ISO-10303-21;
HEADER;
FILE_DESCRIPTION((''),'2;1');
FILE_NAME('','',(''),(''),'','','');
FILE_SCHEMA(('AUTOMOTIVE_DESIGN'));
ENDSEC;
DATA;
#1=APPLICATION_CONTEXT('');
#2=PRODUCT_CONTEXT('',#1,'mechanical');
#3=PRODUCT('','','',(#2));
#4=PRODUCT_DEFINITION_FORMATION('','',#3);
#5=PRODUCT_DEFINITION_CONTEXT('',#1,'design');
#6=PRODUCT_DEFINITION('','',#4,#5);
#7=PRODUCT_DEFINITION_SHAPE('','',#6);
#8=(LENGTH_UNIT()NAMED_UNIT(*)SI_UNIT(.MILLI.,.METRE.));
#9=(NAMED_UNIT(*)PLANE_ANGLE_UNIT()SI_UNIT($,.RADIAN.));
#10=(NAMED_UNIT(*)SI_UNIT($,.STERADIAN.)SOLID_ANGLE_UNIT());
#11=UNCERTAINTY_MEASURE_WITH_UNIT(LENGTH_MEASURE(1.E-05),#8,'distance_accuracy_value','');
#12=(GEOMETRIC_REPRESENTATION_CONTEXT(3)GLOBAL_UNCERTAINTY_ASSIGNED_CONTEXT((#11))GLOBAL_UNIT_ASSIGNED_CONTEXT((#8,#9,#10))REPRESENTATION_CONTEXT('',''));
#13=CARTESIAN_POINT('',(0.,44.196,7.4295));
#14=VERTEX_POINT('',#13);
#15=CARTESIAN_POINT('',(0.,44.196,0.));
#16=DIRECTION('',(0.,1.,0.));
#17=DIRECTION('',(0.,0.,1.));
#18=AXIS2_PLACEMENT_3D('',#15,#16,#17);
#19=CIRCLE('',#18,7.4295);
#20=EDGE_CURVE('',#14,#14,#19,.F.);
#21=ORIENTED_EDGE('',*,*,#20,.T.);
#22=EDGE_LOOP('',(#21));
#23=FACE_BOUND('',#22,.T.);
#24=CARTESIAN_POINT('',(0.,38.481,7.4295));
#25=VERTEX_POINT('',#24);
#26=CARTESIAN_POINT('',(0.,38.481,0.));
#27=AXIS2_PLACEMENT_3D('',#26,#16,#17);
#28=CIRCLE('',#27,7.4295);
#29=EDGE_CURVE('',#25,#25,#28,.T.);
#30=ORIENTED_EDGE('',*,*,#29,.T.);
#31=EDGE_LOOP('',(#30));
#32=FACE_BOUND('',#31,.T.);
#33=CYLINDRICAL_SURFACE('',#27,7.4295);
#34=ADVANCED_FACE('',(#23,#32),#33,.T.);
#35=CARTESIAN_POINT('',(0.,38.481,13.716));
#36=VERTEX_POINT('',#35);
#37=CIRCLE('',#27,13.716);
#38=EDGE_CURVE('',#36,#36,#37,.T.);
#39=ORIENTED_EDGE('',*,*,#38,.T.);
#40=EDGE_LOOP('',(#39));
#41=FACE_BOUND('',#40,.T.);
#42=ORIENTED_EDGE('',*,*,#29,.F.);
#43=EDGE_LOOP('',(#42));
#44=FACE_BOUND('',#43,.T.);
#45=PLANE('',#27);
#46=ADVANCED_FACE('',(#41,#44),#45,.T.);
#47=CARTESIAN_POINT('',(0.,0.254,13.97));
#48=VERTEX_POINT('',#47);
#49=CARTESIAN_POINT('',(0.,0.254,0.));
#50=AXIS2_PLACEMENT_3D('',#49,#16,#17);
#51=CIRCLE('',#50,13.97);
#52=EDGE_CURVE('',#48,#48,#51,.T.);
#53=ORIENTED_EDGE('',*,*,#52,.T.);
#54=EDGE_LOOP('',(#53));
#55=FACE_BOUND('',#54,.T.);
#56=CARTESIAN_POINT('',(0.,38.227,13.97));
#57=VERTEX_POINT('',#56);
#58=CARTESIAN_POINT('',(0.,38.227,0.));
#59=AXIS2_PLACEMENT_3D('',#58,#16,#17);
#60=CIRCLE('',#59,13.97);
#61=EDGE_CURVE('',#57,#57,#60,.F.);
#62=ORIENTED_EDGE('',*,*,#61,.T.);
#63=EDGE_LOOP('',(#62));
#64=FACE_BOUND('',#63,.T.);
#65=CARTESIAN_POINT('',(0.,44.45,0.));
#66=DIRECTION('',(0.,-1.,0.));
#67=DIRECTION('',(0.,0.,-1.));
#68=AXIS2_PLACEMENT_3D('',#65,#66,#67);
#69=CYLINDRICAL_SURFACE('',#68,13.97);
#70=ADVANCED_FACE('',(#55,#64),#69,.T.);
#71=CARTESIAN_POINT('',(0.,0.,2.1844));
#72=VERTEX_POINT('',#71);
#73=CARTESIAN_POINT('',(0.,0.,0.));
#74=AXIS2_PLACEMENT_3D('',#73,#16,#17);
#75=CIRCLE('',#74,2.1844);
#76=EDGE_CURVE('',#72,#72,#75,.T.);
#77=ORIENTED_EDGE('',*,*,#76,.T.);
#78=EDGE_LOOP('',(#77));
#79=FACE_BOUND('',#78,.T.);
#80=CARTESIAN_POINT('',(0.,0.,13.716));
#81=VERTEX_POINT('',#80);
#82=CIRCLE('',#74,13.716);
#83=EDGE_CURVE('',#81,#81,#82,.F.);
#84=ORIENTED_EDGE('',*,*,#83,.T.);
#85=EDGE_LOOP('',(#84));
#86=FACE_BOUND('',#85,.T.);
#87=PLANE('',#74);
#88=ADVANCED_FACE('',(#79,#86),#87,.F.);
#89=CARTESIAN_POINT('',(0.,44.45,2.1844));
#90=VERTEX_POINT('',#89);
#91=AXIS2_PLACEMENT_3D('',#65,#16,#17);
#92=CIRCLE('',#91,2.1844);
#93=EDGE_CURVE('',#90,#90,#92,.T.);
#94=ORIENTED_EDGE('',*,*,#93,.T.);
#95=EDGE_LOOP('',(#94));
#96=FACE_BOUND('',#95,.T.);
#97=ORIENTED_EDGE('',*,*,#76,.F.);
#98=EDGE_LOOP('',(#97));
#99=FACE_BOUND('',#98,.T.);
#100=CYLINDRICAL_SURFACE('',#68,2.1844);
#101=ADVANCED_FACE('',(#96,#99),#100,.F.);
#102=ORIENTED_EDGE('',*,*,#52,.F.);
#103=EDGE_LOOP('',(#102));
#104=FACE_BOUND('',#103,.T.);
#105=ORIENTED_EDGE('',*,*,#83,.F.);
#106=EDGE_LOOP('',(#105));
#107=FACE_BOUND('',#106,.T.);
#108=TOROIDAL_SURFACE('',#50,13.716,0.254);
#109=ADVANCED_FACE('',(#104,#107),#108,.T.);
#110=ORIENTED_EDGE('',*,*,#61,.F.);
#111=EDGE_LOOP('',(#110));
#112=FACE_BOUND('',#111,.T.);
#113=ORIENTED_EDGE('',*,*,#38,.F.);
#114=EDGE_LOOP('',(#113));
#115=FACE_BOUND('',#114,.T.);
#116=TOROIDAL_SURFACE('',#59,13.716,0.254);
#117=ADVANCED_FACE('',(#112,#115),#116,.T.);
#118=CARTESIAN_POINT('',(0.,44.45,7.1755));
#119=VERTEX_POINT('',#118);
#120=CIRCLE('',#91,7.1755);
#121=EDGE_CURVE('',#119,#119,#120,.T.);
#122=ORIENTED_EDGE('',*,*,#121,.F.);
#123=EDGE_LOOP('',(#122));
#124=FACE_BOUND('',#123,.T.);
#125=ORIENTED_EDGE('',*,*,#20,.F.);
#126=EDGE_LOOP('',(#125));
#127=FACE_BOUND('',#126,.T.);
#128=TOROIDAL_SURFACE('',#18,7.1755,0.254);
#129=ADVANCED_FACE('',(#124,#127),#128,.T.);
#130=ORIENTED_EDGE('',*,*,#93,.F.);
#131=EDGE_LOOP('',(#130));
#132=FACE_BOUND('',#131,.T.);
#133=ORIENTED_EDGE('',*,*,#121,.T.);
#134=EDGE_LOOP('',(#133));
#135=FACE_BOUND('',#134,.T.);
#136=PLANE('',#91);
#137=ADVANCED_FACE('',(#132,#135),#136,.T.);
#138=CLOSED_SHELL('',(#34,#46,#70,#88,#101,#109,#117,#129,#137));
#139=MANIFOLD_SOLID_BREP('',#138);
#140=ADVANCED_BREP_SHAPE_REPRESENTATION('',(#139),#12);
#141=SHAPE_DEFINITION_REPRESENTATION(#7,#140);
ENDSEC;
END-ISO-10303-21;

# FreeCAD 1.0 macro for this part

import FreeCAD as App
import Part
import Sketcher

V = App.Vector
Q = App.Units.Quantity


def edges_at(feature, points):
    """Names of the edges that pass closest to the given points."""
    edges = feature.Shape.Edges
    near = lambda p: min(range(len(edges)), key=lambda i: edges[i].distToShape(Part.Vertex(*p))[0])
    return sorted({f"Edge{near(p) + 1}" for p in points})

doc = App.newDocument("Part")
body = doc.addObject("PartDesign::Body", "Body")

sketch1 = body.newObject("Sketcher::SketchObject", "Sketch")
sketch1.AttachmentSupport = (doc.getObject("XZ_Plane"), [""])
sketch1.MapMode = "FlatFace"
sketch1.addGeometry([
    Part.Circle(V(0, 0, 0), V(0, 0, 1), 13.97),
    Part.Circle(V(0, 0, 0), V(0, 0, 1), 2.1844),
], False)
sketch1.addConstraint([
    Sketcher.Constraint("Coincident", 0, 3, -1, 1),
    Sketcher.Constraint("Coincident", 1, 3, -1, 1),
    Sketcher.Constraint("Diameter", 0, Q("1.1 in")),
    Sketcher.Constraint("Diameter", 1, Q("0.172 in")),
])
pad1 = body.newObject("PartDesign::Pad", "Pad")
pad1.Profile = sketch1
pad1.Length = Q("1.75 in")
pad1.Reversed = True

sketch2 = body.newObject("Sketcher::SketchObject", "Sketch001")
sketch2.AttachmentSupport = (doc.getObject("XZ_Plane"), [""])
sketch2.MapMode = "FlatFace"
sketch2.AttachmentOffset = App.Placement(V(0, 0, -1.515 * 25.4), App.Rotation())
sketch2.addGeometry([
    Part.Circle(V(0, 0, 0), V(0, 0, 1), 13.97),
    Part.Circle(V(0, 0, 0), V(0, 0, 1), 7.4295),
], False)
sketch2.addConstraint([
    Sketcher.Constraint("Coincident", 0, 3, -1, 1),
    Sketcher.Constraint("Coincident", 1, 3, -1, 1),
    Sketcher.Constraint("Diameter", 0, Q("1.1 in")),
    Sketcher.Constraint("Diameter", 1, Q("0.585 in")),
])
pocket1 = body.newObject("PartDesign::Pocket", "Pocket")
pocket1.Profile = sketch2
pocket1.Length = Q("0.235 in")
doc.recompute()

fillet = body.newObject("PartDesign::Fillet", "Fillet")
fillet.Base = (pocket1, edges_at(pocket1, [(0, 38.481, -13.97), (0, 44.45, -7.429), (0, 0, -13.97)]))
fillet.Radius = Q("0.01 in")

doc.recompute()
